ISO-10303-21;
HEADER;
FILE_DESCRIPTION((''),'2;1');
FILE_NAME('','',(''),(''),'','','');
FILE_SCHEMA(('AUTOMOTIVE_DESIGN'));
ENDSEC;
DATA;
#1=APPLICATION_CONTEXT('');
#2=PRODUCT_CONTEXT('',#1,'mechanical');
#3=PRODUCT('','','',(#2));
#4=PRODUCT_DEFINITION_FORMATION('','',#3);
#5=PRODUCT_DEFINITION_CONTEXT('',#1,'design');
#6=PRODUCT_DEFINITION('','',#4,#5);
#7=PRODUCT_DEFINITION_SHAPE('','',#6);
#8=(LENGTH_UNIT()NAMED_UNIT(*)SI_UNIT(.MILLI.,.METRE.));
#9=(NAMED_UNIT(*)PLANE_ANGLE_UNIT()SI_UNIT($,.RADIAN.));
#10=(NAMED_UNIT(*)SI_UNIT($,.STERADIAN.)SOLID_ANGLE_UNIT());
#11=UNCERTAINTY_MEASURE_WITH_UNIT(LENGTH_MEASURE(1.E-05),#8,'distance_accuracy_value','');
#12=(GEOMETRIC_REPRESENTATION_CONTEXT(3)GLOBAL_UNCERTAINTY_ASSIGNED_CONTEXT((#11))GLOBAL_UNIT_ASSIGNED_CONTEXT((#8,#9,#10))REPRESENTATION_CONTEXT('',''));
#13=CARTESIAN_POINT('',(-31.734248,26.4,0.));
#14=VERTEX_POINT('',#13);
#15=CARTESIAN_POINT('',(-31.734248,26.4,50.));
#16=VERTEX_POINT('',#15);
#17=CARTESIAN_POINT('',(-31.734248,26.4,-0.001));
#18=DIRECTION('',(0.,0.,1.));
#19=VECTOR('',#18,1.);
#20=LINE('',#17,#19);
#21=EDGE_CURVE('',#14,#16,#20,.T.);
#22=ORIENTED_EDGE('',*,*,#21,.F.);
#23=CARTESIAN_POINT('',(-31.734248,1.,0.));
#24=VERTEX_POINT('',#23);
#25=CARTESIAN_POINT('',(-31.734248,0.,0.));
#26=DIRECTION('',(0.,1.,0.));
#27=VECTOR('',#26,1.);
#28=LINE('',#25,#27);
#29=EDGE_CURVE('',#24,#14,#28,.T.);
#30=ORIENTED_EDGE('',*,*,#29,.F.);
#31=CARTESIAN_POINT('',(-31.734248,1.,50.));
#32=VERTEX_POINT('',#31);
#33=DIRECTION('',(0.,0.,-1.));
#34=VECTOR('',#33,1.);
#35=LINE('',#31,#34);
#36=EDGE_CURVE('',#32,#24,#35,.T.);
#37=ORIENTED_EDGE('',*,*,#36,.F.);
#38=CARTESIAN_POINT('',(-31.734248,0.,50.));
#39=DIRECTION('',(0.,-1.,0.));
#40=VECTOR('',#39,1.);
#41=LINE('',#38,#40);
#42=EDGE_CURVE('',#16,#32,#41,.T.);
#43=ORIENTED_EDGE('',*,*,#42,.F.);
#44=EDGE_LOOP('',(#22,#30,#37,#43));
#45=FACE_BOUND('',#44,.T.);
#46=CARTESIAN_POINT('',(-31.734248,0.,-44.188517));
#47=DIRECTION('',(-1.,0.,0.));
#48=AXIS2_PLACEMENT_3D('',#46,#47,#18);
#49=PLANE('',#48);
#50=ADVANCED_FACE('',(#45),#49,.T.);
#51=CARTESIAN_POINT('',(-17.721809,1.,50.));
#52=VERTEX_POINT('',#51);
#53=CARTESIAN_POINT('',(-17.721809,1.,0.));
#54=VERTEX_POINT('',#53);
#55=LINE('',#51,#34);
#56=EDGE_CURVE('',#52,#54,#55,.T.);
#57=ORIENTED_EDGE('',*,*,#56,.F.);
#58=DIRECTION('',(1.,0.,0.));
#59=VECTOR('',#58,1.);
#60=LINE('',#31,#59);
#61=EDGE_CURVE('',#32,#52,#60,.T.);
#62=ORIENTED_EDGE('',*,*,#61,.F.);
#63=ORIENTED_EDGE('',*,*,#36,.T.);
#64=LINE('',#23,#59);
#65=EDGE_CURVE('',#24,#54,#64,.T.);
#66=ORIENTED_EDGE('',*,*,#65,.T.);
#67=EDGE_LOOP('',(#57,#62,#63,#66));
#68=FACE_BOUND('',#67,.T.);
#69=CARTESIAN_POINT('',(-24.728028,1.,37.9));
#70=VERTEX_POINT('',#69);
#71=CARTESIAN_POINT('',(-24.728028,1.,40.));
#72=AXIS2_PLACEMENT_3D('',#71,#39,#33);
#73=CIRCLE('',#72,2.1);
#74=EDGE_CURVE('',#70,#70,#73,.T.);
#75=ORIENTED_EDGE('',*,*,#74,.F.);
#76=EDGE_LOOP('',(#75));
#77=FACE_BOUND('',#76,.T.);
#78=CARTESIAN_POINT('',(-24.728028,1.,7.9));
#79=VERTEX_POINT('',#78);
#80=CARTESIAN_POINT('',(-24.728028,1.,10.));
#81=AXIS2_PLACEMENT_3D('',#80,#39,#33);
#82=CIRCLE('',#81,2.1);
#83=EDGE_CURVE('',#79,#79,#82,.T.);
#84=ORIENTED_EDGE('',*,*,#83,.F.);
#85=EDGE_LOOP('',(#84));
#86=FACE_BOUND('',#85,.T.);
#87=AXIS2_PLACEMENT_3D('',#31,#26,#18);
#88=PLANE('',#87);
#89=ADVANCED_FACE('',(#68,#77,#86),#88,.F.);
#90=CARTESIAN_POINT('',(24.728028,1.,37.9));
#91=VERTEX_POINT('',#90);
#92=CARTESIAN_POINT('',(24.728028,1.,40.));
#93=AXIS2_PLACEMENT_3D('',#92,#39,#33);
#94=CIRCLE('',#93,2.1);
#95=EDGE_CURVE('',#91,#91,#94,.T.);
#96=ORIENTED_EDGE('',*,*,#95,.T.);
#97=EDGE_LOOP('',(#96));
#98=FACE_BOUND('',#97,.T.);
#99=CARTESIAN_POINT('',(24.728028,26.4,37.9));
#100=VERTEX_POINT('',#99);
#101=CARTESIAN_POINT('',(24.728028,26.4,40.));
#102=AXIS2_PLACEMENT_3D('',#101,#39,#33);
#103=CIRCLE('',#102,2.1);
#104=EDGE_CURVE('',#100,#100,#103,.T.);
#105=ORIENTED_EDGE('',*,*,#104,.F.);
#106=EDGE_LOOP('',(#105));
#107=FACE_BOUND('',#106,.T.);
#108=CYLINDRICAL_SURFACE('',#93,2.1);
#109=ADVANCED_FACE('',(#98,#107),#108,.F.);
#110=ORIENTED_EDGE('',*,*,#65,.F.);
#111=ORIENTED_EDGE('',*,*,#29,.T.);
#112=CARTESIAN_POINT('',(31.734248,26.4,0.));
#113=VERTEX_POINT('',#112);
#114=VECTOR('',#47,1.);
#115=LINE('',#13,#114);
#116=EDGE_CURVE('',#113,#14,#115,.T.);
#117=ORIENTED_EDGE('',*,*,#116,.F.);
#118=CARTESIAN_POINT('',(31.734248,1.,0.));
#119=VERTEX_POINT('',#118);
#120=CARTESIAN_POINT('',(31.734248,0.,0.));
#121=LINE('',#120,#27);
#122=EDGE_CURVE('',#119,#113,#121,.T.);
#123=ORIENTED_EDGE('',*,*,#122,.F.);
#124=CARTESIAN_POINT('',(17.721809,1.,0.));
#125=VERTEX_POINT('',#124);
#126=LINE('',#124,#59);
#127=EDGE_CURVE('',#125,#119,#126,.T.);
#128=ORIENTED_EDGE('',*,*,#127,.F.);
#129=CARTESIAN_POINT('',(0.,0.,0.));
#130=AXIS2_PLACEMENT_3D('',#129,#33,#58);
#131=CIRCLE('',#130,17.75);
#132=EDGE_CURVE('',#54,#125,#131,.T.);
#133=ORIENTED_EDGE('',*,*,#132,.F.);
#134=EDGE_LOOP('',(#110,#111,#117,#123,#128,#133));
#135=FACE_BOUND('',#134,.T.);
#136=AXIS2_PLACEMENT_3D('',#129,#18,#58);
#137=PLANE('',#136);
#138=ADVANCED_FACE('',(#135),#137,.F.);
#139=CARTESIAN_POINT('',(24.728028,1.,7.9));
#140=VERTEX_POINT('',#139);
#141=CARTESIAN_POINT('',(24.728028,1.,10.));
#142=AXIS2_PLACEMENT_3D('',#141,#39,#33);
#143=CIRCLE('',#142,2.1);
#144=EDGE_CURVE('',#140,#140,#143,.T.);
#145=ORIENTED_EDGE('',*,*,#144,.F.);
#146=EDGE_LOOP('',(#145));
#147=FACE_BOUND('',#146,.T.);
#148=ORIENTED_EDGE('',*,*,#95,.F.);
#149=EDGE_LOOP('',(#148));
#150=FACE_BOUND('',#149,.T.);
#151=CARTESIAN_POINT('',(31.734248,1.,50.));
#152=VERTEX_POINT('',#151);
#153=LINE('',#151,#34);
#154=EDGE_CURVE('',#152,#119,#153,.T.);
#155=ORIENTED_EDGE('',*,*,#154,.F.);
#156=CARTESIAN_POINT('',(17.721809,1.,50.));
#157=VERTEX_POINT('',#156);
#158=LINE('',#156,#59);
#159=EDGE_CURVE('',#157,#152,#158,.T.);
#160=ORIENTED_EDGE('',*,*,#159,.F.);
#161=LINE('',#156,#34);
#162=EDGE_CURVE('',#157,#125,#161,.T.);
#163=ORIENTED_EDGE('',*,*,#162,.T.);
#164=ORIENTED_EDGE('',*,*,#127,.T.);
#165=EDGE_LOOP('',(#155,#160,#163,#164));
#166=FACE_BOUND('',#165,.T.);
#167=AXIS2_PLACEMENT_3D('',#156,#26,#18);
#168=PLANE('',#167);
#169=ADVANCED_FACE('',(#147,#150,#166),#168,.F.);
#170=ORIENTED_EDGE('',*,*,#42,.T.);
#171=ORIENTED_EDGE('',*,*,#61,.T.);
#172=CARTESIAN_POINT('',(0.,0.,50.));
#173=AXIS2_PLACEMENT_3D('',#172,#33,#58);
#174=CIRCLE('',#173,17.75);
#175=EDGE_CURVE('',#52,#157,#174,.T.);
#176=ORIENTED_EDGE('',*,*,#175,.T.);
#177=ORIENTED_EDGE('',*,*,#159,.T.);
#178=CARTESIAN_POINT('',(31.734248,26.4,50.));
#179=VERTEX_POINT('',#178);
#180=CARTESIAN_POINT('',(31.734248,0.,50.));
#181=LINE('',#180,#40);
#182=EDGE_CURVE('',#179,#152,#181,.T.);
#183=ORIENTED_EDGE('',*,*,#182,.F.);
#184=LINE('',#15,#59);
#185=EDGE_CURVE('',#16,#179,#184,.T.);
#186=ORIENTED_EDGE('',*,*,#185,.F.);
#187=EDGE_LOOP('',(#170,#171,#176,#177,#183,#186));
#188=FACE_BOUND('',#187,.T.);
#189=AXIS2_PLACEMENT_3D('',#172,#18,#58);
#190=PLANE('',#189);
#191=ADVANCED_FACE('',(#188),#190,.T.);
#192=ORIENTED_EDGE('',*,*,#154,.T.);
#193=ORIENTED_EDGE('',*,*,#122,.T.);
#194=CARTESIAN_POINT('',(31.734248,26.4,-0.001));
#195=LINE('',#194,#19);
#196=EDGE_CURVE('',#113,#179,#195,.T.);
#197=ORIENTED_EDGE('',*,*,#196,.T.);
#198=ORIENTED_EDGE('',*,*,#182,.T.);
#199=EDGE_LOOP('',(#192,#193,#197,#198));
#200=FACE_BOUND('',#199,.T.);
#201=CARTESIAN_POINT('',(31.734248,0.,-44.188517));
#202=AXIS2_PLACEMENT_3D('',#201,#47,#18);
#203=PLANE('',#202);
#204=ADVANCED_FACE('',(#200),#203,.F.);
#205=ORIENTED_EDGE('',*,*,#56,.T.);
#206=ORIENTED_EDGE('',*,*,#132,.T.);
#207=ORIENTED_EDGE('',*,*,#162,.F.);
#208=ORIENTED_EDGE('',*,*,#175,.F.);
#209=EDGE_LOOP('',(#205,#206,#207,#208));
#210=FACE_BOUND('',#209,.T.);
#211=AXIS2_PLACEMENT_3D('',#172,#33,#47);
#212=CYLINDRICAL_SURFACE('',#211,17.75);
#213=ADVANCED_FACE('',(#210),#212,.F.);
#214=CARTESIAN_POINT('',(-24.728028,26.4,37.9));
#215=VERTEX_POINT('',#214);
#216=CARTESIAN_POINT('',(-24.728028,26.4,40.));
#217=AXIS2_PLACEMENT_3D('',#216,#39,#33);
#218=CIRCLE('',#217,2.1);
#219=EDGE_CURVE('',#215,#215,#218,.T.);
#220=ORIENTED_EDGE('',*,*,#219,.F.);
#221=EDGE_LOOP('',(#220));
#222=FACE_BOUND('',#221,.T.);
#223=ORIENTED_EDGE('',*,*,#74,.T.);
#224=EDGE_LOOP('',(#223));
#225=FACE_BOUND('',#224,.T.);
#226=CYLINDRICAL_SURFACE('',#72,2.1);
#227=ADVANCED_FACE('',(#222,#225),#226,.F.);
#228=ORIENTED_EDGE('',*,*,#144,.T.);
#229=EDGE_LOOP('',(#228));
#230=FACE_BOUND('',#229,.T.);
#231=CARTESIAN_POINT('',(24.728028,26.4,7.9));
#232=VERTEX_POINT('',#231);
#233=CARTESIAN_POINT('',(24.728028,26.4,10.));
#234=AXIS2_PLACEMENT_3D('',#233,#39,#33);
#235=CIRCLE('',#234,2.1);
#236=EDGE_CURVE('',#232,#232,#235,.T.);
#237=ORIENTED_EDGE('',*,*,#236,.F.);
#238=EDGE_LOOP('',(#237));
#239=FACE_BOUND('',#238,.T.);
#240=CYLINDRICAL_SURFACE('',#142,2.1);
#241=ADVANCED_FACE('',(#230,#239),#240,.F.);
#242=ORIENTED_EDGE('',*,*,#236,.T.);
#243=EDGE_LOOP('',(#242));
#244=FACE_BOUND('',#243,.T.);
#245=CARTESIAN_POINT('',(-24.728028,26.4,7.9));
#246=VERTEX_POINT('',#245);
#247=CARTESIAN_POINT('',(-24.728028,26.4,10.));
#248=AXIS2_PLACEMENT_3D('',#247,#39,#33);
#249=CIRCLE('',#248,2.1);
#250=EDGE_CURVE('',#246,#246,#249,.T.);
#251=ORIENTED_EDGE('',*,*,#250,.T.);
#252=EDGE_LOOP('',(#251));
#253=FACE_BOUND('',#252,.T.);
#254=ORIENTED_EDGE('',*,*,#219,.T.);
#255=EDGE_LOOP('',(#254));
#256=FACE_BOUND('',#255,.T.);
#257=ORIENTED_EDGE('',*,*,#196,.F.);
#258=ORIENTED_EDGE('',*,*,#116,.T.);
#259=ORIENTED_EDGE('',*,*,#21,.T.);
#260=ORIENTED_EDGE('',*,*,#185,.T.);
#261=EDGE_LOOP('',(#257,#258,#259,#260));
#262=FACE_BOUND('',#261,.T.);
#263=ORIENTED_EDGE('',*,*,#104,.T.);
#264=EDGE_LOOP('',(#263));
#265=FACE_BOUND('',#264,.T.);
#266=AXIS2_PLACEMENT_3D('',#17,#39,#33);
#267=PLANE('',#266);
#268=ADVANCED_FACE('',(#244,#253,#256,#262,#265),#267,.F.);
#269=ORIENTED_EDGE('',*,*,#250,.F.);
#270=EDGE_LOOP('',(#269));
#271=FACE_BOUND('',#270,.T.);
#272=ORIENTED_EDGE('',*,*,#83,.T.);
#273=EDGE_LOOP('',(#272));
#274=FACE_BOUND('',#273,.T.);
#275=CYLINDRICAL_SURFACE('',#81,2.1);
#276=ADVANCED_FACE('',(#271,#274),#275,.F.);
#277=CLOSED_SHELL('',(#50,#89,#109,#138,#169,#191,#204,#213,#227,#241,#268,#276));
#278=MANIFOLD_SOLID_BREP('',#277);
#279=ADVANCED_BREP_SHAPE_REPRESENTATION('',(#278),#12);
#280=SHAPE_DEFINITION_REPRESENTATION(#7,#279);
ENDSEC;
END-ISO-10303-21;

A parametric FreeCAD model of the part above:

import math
import FreeCAD as App
import Part
import Sketcher
from FreeCAD import Vector
Q = App.Units.Quantity

doc = App.newDocument("Part")
body = doc.addObject("PartDesign::Body", "Body")

# Sketch on XY plane
sketch1 = body.newObject("Sketcher::SketchObject", "Sketch")
sketch1.AttachmentSupport = (doc.getObject("XY_Plane"), [""])
sketch1.MapMode = "FlatFace"
sketch1.addGeometry(Part.LineSegment(Vector(-31.734248, 1, 0), Vector(-17.721809, 1, 0)), False)
sketch1.addGeometry(Part.ArcOfCircle(Part.Circle(Vector(0, 0, 0), Vector(0, 0, 1), 17.75), math.radians(3.229641), math.radians(176.770359)), False)
sketch1.addGeometry(Part.LineSegment(Vector(17.721809, 1, 0), Vector(31.734248, 1, 0)), False)
sketch1.addGeometry(Part.ArcOfCircle(Part.Circle(Vector(0, 0, 0), Vector(0, 0, 1), 31.75), math.radians(1.80489), math.radians(178.19511)), False)
sketch1.addConstraint(Sketcher.Constraint("Coincident", 0, 2, 1, 2))
sketch1.addConstraint(Sketcher.Constraint("Coincident", 1, 1, 2, 1))
sketch1.addConstraint(Sketcher.Constraint("Coincident", 2, 2, 3, 1))
sketch1.addConstraint(Sketcher.Constraint("Coincident", 3, 2, 0, 1))
sketch1.addConstraint(Sketcher.Constraint("Horizontal", 0))
sketch1.addConstraint(Sketcher.Constraint("Horizontal", 2))
sketch1.addConstraint(Sketcher.Constraint("Coincident", 1, 3, -1, 1))
sketch1.addConstraint(Sketcher.Constraint("Coincident", 3, 3, -1, 1))
sketch1.addConstraint(Sketcher.Constraint("Horizontal", 0, 2, 1, 1))
sketch1.addConstraint(Sketcher.Constraint("Radius", 1, Q("17.75 mm")))
sketch1.addConstraint(Sketcher.Constraint("Radius", 3, Q("31.75 mm")))
sketch1.addConstraint(Sketcher.Constraint("DistanceY", -1, 1, 0, 2, Q("1 mm")))
pad1 = body.newObject("PartDesign::Pad", "Pad")
pad1.Profile = sketch1
pad1.Length = 50

# Sketch on XY plane
sketch2 = body.newObject("Sketcher::SketchObject", "Sketch001")
sketch2.AttachmentSupport = (doc.getObject("XY_Plane"), [""])
sketch2.MapMode = "FlatFace"
sketch2.addGeometry(Part.LineSegment(Vector(31.734248, 31.75, 0), Vector(0, 31.75, 0)), False)
sketch2.addGeometry(Part.ArcOfCircle(Part.Circle(Vector(0, 0, 0), Vector(0, 0, 1), 31.75), math.radians(1.80489), math.radians(90)), False)
sketch2.addGeometry(Part.LineSegment(Vector(31.734248, 1, 0), Vector(31.734248, 31.75, 0)), False)
sketch2.addGeometry(Part.ArcOfCircle(Part.Circle(Vector(0, 0, 0), Vector(0, 0, 1), 31.75), math.radians(90), math.radians(178.19511)), False)
sketch2.addGeometry(Part.LineSegment(Vector(0, 31.75, 0), Vector(-31.734248, 31.75, 0)), False)
sketch2.addGeometry(Part.LineSegment(Vector(-31.734248, 31.75, 0), Vector(-31.734248, 1, 0)), False)
sketch2.addConstraint(Sketcher.Constraint("Tangent", 0, 2, 1, 2))
sketch2.addConstraint(Sketcher.Constraint("Coincident", 1, 1, 2, 1))
sketch2.addConstraint(Sketcher.Constraint("Coincident", 2, 2, 0, 1))
sketch2.addConstraint(Sketcher.Constraint("Tangent", 3, 1, 4, 1))
sketch2.addConstraint(Sketcher.Constraint("Coincident", 4, 2, 5, 1))
sketch2.addConstraint(Sketcher.Constraint("Coincident", 5, 2, 3, 2))
sketch2.addConstraint(Sketcher.Constraint("Horizontal", 0))
sketch2.addConstraint(Sketcher.Constraint("Vertical", 2))
sketch2.addConstraint(Sketcher.Constraint("Horizontal", 4))
sketch2.addConstraint(Sketcher.Constraint("Vertical", 5))
sketch2.addConstraint(Sketcher.Constraint("Coincident", 1, 3, -1, 1))
sketch2.addConstraint(Sketcher.Constraint("Coincident", 3, 3, -1, 1))
sketch2.addConstraint(Sketcher.Constraint("Equal", 1, 3))
sketch2.addConstraint(Sketcher.Constraint("Horizontal", 1, 1, 5, 2))
sketch2.addConstraint(Sketcher.Constraint("Radius", 1, Q("31.75 mm")))
sketch2.addConstraint(Sketcher.Constraint("DistanceY", -1, 1, 1, 1, Q("1 mm")))
pad2 = body.newObject("PartDesign::Pad", "Pad001")
pad2.Profile = sketch2
pad2.Length = 50

# Sketch on XZ plane
sketch3 = body.newObject("Sketcher::SketchObject", "Sketch002")
sketch3.AttachmentSupport = (doc.getObject("XZ_Plane"), [""])
sketch3.MapMode = "FlatFace"
sketch3.AttachmentOffset = App.Placement(Vector(0, 0, -1), App.Rotation())
sketch3.addGeometry(Part.Circle(Vector(-24.728028, 40, 0), Vector(0, 0, 1), 2.1), False)
sketch3.addGeometry(Part.Circle(Vector(-24.728028, 10, 0), Vector(0, 0, 1), 2.1), False)
sketch3.addGeometry(Part.Circle(Vector(24.728028, 40, 0), Vector(0, 0, 1), 2.1), False)
sketch3.addGeometry(Part.Circle(Vector(24.728028, 10, 0), Vector(0, 0, 1), 2.1), False)
sketch3.addConstraint(Sketcher.Constraint("Equal", 0, 1))
sketch3.addConstraint(Sketcher.Constraint("Equal", 1, 2))
sketch3.addConstraint(Sketcher.Constraint("Equal", 2, 3))
sketch3.addConstraint(Sketcher.Constraint("Symmetric", 0, 3, 2, 3, -2))
sketch3.addConstraint(Sketcher.Constraint("Symmetric", 1, 3, 3, 3, -2))
sketch3.addConstraint(Sketcher.Constraint("Vertical", 0, 3, 1, 3))
sketch3.addConstraint(Sketcher.Constraint("Diameter", 0, Q("4.2 mm")))
sketch3.addConstraint(Sketcher.Constraint("DistanceY", -1, 1, 0, 3, Q("40 mm")))
sketch3.addConstraint(Sketcher.Constraint("DistanceY", -1, 1, 1, 3, Q("10 mm")))
sketch3.addConstraint(Sketcher.Constraint("DistanceX", 0, 3, -1, 1, Q("24.728028 mm")))
doc.recompute()
hole = body.newObject("PartDesign::Hole", "Hole")
hole.Profile = sketch3
hole.ThreadType = "None"
hole.Diameter = 4.2
hole.DepthType = "ThroughAll"

# Sketch on XY plane
sketch4 = body.newObject("Sketcher::SketchObject", "Sketch003")
sketch4.AttachmentSupport = (doc.getObject("XY_Plane"), [""])
sketch4.MapMode = "FlatFace"
sketch4.AttachmentOffset = App.Placement(Vector(0, 0, 50), App.Rotation())
sketch4.addGeometry(Part.LineSegment(Vector(-31.734248, 31.75, 0), Vector(-31.734248, 26.4, 0)), False)
sketch4.addGeometry(Part.LineSegment(Vector(-31.734248, 26.4, 0), Vector(31.734248, 26.4, 0)), False)
sketch4.addGeometry(Part.LineSegment(Vector(31.734248, 26.4, 0), Vector(31.734248, 31.75, 0)), False)
sketch4.addGeometry(Part.LineSegment(Vector(31.734248, 31.75, 0), Vector(-31.734248, 31.75, 0)), False)
sketch4.addConstraint(Sketcher.Constraint("Coincident", 0, 2, 1, 1))
sketch4.addConstraint(Sketcher.Constraint("Coincident", 1, 2, 2, 1))
sketch4.addConstraint(Sketcher.Constraint("Coincident", 2, 2, 3, 1))
sketch4.addConstraint(Sketcher.Constraint("Coincident", 3, 2, 0, 1))
sketch4.addConstraint(Sketcher.Constraint("Vertical", 0))
sketch4.addConstraint(Sketcher.Constraint("Horizontal", 1))
sketch4.addConstraint(Sketcher.Constraint("Vertical", 2))
sketch4.addConstraint(Sketcher.Constraint("Horizontal", 3))
sketch4.addConstraint(Sketcher.Constraint("DistanceY", 0, 2, 0, 1, Q("5.35 mm")))
sketch4.addConstraint(Sketcher.Constraint("DistanceY", -1, 1, 0, 2, Q("26.4 mm")))
sketch4.addConstraint(Sketcher.Constraint("DistanceX", 1, 1, 1, 2, Q("63.468496 mm")))
sketch4.addConstraint(Sketcher.Constraint("DistanceX", 0, 2, -1, 1, Q("31.734248 mm")))
pocket1 = body.newObject("PartDesign::Pocket", "Pocket")
pocket1.Profile = sketch4
pocket1.Type = "UpToFirst"

doc.recompute()
